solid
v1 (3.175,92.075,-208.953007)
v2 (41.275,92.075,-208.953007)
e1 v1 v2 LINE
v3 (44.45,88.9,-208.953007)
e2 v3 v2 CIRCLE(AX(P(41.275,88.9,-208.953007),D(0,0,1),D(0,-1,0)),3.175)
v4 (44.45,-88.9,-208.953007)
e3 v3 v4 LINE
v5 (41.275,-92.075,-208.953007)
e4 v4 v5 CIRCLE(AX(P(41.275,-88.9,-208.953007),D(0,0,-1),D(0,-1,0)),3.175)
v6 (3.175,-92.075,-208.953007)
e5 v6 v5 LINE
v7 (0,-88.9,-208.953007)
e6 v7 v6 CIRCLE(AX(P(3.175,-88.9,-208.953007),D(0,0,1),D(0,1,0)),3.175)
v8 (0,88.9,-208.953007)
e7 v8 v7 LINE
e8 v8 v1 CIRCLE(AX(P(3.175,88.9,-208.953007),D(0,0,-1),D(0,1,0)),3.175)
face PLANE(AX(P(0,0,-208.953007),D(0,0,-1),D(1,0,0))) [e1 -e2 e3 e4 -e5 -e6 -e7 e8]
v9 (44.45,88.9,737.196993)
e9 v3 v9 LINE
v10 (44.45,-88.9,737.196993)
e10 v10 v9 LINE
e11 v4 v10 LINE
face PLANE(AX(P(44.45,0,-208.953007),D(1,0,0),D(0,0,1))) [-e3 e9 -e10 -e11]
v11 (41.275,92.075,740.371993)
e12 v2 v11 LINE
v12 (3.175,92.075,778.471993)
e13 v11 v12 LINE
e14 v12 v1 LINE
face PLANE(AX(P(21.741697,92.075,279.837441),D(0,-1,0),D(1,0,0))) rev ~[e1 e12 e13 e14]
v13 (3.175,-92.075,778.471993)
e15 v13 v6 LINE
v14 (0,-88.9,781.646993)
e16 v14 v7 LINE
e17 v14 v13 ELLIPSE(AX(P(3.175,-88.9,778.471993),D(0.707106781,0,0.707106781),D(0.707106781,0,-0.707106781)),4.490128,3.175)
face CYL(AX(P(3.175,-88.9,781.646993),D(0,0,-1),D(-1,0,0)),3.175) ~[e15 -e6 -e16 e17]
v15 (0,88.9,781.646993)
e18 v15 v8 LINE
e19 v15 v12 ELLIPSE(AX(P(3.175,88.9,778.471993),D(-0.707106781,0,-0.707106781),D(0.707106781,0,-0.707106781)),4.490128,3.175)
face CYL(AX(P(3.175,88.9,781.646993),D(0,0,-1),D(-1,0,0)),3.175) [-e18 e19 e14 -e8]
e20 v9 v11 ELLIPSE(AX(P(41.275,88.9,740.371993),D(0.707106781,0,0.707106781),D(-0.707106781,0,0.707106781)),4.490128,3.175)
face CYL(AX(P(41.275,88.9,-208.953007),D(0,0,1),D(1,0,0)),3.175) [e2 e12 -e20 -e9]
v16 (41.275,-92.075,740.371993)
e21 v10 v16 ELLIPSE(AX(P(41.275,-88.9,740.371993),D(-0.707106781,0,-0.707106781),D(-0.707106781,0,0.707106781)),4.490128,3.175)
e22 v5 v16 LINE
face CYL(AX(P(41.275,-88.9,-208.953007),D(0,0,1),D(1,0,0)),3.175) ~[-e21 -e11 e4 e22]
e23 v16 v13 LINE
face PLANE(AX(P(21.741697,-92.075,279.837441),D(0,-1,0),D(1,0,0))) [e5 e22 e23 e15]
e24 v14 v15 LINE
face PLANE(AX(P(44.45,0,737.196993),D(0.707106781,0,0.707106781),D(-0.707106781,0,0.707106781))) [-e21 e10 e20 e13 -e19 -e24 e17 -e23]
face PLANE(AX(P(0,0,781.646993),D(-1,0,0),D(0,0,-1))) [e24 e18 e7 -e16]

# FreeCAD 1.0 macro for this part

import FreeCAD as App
import Part
import Sketcher

V = App.Vector
Q = App.Units.Quantity


def edges_at(feature, points):
    """Names of the edges that pass closest to the given points."""
    edges = feature.Shape.Edges
    near = lambda p: min(range(len(edges)), key=lambda i: edges[i].distToShape(Part.Vertex(*p))[0])
    return sorted({f"Edge{near(p) + 1}" for p in points})

doc = App.newDocument("Part")
body = doc.addObject("PartDesign::Body", "Body")

# Sketch on XZ plane
sketch1 = body.newObject("Sketcher::SketchObject", "Sketch")
sketch1.AttachmentSupport = (doc.getObject("XZ_Plane"), [""])
sketch1.MapMode = "FlatFace"
sketch1.addGeometry([
    Part.LineSegment(V(0, 782, 0), V(0, -209, 0)),
    Part.LineSegment(V(0, -209, 0), V(44, -209, 0)),
    Part.LineSegment(V(44, -209, 0), V(44, 737, 0)),
    Part.LineSegment(V(44, 737, 0), V(0, 782, 0)),
], False)
sketch1.addConstraint([
    Sketcher.Constraint("Coincident", 0, 2, 1, 1),
    Sketcher.Constraint("Coincident", 1, 2, 2, 1),
    Sketcher.Constraint("Coincident", 2, 2, 3, 1),
    Sketcher.Constraint("Coincident", 3, 2, 0, 1),
    Sketcher.Constraint("Vertical", 0),
    Sketcher.Constraint("Horizontal", 1),
    Sketcher.Constraint("Vertical", 2),
    Sketcher.Constraint("PointOnObject", 0, 2, -2),
    Sketcher.Constraint("DistanceY", 0, 2, 0, 1, Q("39 in")),
    Sketcher.Constraint("Angle", 3, Q("135 deg")),
    Sketcher.Constraint("DistanceX", 1, 1, 1, 2, Q("1.75 in")),
    Sketcher.Constraint("DistanceY", 0, 2, -1, 1, 208.953007),
])
pad1 = body.newObject("PartDesign::Pad", "Pad")
pad1.Profile = sketch1
pad1.Length = Q("7.25 in")
pad1.Midplane = True
doc.recompute()

fillet = body.newObject("PartDesign::Fillet", "Fillet")
fillet.Base = (pad1, edges_at(pad1, [
    (0, -92.075, 286.347),
    (44.45, -92.075, 264.122),
    (44.45, 92.075, 264.122),
    (0, 92.075, 286.347),
]))
fillet.Radius = Q("0.125 in")

doc.recompute()
